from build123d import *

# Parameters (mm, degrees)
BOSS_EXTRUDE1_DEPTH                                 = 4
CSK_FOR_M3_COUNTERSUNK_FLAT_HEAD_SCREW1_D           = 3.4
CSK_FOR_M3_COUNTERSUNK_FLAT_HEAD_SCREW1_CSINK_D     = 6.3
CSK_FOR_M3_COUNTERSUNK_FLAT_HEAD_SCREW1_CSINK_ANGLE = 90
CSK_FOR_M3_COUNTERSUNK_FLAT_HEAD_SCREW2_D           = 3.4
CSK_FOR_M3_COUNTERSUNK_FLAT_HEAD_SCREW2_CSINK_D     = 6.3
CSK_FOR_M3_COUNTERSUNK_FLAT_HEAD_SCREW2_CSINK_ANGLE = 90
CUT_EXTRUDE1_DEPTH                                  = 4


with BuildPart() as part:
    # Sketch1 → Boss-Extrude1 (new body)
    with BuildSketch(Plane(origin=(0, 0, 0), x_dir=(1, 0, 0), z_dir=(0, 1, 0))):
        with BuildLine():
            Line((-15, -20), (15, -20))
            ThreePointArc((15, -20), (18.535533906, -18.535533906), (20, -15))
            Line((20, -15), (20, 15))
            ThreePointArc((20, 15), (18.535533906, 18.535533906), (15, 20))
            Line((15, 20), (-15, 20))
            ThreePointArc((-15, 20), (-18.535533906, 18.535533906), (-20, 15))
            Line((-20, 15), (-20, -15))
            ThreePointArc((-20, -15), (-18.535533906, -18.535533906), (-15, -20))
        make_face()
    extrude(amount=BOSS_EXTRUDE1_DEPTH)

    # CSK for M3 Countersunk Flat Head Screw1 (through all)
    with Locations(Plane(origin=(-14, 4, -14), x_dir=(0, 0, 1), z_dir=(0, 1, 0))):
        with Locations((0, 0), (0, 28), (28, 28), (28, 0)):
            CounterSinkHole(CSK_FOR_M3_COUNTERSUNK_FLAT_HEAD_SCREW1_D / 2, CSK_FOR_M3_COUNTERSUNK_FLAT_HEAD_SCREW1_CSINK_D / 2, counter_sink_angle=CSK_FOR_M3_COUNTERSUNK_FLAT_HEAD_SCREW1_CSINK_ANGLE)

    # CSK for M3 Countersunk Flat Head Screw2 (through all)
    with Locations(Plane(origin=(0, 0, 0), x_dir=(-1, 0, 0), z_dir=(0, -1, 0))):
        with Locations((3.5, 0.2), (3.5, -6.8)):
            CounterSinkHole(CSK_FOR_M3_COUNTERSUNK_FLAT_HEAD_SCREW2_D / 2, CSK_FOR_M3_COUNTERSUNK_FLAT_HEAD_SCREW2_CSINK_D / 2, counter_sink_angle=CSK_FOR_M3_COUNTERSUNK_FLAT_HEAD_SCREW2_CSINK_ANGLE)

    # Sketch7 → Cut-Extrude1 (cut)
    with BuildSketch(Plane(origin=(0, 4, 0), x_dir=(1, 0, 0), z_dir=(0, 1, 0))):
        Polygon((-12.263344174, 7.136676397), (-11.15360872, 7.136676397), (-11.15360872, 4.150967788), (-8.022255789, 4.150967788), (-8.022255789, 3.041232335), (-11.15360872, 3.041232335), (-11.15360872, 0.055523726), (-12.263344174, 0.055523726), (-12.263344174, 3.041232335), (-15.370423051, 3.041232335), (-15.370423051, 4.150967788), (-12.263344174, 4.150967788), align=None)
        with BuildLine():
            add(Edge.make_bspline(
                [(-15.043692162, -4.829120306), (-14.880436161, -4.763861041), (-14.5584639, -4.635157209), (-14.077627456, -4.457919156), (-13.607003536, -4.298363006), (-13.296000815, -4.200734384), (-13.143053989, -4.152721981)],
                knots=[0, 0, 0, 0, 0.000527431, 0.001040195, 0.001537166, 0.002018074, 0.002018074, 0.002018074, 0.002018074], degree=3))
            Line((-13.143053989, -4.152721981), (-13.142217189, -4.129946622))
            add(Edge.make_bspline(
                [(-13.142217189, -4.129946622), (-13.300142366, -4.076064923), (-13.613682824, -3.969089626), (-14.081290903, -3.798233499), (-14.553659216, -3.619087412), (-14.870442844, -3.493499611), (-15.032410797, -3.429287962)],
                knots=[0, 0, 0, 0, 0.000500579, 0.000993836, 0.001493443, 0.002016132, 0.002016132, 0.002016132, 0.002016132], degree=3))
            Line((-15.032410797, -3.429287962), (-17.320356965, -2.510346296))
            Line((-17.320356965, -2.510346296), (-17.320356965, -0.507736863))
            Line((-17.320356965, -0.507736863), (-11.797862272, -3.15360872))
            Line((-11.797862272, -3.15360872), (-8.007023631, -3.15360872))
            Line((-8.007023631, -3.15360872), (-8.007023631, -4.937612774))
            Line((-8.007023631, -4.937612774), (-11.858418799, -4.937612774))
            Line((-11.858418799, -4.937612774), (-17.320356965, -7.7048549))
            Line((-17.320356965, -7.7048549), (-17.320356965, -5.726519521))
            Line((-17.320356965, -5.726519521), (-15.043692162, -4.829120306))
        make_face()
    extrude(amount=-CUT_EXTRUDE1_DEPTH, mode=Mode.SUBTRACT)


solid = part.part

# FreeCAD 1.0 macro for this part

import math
import FreeCAD as App
import Part
import Sketcher

V = App.Vector
Q = App.Units.Quantity

doc = App.newDocument("Part")
params = doc.addObject("Spreadsheet::Sheet", "Params")
for row, (alias, value) in enumerate([
    ("sketch1_radius", "5 mm"),
    ("sketch1_width", "30 mm"),
    ("pad1_length", "4 mm"),
    ("sketch2_diameter", "3.4 mm"),
    ("hole_diameter", "3.4 mm"),
    ("hole_csink_diameter", "6.3 mm"),
    ("sketch3_diameter", "3.4 mm"),
    ("hole2_diameter", "3.4 mm"),
    ("hole2_csink_diameter", "6.3 mm"),
    ("pocket1_length", "4 mm"),
], start=1):
    params.set(f"A{row}", alias)
    params.set(f"B{row}", "=" + value)
    params.setAlias(f"B{row}", alias)

body = doc.addObject("PartDesign::Body", "Body")

# Sketch on XZ plane
sketch1 = body.newObject("Sketcher::SketchObject", "Sketch")
sketch1.AttachmentSupport = (doc.getObject("XZ_Plane"), [""])
sketch1.MapMode = "FlatFace"
sketch1.addGeometry(Part.LineSegment(V(-15, 20, 0), V(15, 20, 0)), False)
sketch1.addGeometry(Part.ArcOfCircle(Part.Circle(V(15, 15, 0), V(0, 0, 1), 5), math.radians(0), math.radians(90)), False)
sketch1.addGeometry(Part.LineSegment(V(20, 15, 0), V(20, -15, 0)), False)
sketch1.addGeometry(Part.ArcOfCircle(Part.Circle(V(15, -15, 0), V(0, 0, 1), 5), math.radians(-90), math.radians(0)), False)
sketch1.addGeometry(Part.LineSegment(V(15, -20, 0), V(-15, -20, 0)), False)
sketch1.addGeometry(Part.ArcOfCircle(Part.Circle(V(-15, -15, 0), V(0, 0, 1), 5), math.radians(180), math.radians(270)), False)
sketch1.addGeometry(Part.LineSegment(V(-20, -15, 0), V(-20, 15, 0)), False)
sketch1.addGeometry(Part.ArcOfCircle(Part.Circle(V(-15, 15, 0), V(0, 0, 1), 5), math.radians(90), math.radians(180)), False)
sketch1.addConstraint(Sketcher.Constraint("Tangent", 0, 2, 1, 2))
sketch1.addConstraint(Sketcher.Constraint("Tangent", 1, 1, 2, 1))
sketch1.addConstraint(Sketcher.Constraint("Tangent", 2, 2, 3, 2))
sketch1.addConstraint(Sketcher.Constraint("Tangent", 3, 1, 4, 1))
sketch1.addConstraint(Sketcher.Constraint("Tangent", 4, 2, 5, 2))
sketch1.addConstraint(Sketcher.Constraint("Tangent", 5, 1, 6, 1))
sketch1.addConstraint(Sketcher.Constraint("Tangent", 6, 2, 7, 2))
sketch1.addConstraint(Sketcher.Constraint("Tangent", 7, 1, 0, 1))
sketch1.addConstraint(Sketcher.Constraint("Horizontal", 0))
sketch1.addConstraint(Sketcher.Constraint("Vertical", 2))
sketch1.addConstraint(Sketcher.Constraint("Horizontal", 4))
sketch1.addConstraint(Sketcher.Constraint("Vertical", 6))
sketch1.addConstraint(Sketcher.Constraint("Equal", 1, 3))
sketch1.addConstraint(Sketcher.Constraint("Equal", 3, 5))
sketch1.addConstraint(Sketcher.Constraint("Equal", 5, 7))
sketch1.addConstraint(Sketcher.Constraint("Symmetric", 1, 3, 5, 3, -1, 1))
sketch1.addConstraint(Sketcher.Constraint("Equal", 4, 2))
sketch1.addConstraint(Sketcher.Constraint("Radius", 1, Q("5 mm")))
sketch1.addConstraint(Sketcher.Constraint("DistanceX", 0, 1, 0, 2, Q("30 mm")))
sketch1.setExpression("Constraints[17]", "Params.sketch1_radius")
sketch1.setExpression("Constraints[18]", "Params.sketch1_width")
pad1 = body.newObject("PartDesign::Pad", "Pad")
pad1.Profile = sketch1
pad1.setExpression("Length", "Params.pad1_length")
pad1.Reversed = True

# Sketch on XZ plane
sketch2 = body.newObject("Sketcher::SketchObject", "Sketch001")
sketch2.AttachmentSupport = (doc.getObject("XZ_Plane"), [""])
sketch2.MapMode = "FlatFace"
sketch2.AttachmentOffset = App.Placement(V(0, 0, -4), App.Rotation())
sketch2.addGeometry(Part.Circle(V(-14, -14, 0), V(0, 0, 1), 1.7), False)
sketch2.addGeometry(Part.Circle(V(14, -14, 0), V(0, 0, 1), 1.7), False)
sketch2.addGeometry(Part.Circle(V(14, 14, 0), V(0, 0, 1), 1.7), False)
sketch2.addGeometry(Part.Circle(V(-14, 14, 0), V(0, 0, 1), 1.7), False)
sketch2.addConstraint(Sketcher.Constraint("Equal", 0, 1))
sketch2.addConstraint(Sketcher.Constraint("Equal", 1, 2))
sketch2.addConstraint(Sketcher.Constraint("Equal", 2, 3))
sketch2.addConstraint(Sketcher.Constraint("Symmetric", 0, 3, 2, 3, -1, 1))
sketch2.addConstraint(Sketcher.Constraint("Symmetric", 1, 3, 3, 3, -1, 1))
sketch2.addConstraint(Sketcher.Constraint("Symmetric", 0, 3, 1, 3, -2))
sketch2.addConstraint(Sketcher.Constraint("Diameter", 0, Q("3.4 mm")))
sketch2.addConstraint(Sketcher.Constraint("DistanceX", 0, 3, -1, 1, Q("14 mm")))
sketch2.addConstraint(Sketcher.Constraint("DistanceY", 0, 3, -1, 1, Q("14 mm")))
sketch2.setExpression("Constraints[6]", "Params.sketch2_diameter")
doc.recompute()
hole = body.newObject("PartDesign::Hole", "Hole")
hole.Profile = sketch2
hole.ThreadType = "None"
hole.setExpression("Diameter", "Params.hole_diameter")
hole.DepthType = "ThroughAll"
hole.HoleCutType = "Countersink"
hole.setExpression("HoleCutDiameter", "Params.hole_csink_diameter")
hole.HoleCutCountersinkAngle = 90
hole.Reversed = True

# Sketch on XZ plane
sketch3 = body.newObject("Sketcher::SketchObject", "Sketch002")
sketch3.AttachmentSupport = (doc.getObject("XZ_Plane"), [""])
sketch3.MapMode = "FlatFace"
sketch3.addGeometry(Part.Circle(V(-3.5, -0.2, 0), V(0, 0, 1), 1.7), False)
sketch3.addGeometry(Part.Circle(V(-3.5, 6.8, 0), V(0, 0, 1), 1.7), False)
sketch3.addConstraint(Sketcher.Constraint("Equal", 0, 1))
sketch3.addConstraint(Sketcher.Constraint("Vertical", 0, 3, 1, 3))
sketch3.addConstraint(Sketcher.Constraint("Diameter", 0, Q("3.4 mm")))
sketch3.addConstraint(Sketcher.Constraint("DistanceY", 0, 3, 1, 3, Q("7 mm")))
sketch3.addConstraint(Sketcher.Constraint("DistanceX", 0, 3, -1, 1, Q("3.5 mm")))
sketch3.addConstraint(Sketcher.Constraint("DistanceY", 0, 3, -1, 1, Q("0.2 mm")))
sketch3.setExpression("Constraints[2]", "Params.sketch3_diameter")
doc.recompute()
hole2 = body.newObject("PartDesign::Hole", "Hole001")
hole2.Profile = sketch3
hole2.ThreadType = "None"
hole2.setExpression("Diameter", "Params.hole2_diameter")
hole2.DepthType = "ThroughAll"
hole2.HoleCutType = "Countersink"
hole2.setExpression("HoleCutDiameter", "Params.hole2_csink_diameter")
hole2.HoleCutCountersinkAngle = 90

# Sketch on XZ plane
sketch4 = body.newObject("Sketcher::SketchObject", "Sketch003")
sketch4.AttachmentSupport = (doc.getObject("XZ_Plane"), [""])
sketch4.MapMode = "FlatFace"
sketch4.AttachmentOffset = App.Placement(V(0, 0, -4), App.Rotation())
sketch4.addGeometry(Part.LineSegment(V(-11.153609, -7.136676, 0), V(-12.263344, -7.136676, 0)), False)
sketch4.addGeometry(Part.LineSegment(V(-12.263344, -7.136676, 0), V(-12.263344, -4.150968, 0)), False)
sketch4.addGeometry(Part.LineSegment(V(-12.263344, -4.150968, 0), V(-15.370423, -4.150968, 0)), False)
sketch4.addGeometry(Part.LineSegment(V(-15.370423, -4.150968, 0), V(-15.370423, -3.041232, 0)), False)
sketch4.addGeometry(Part.LineSegment(V(-15.370423, -3.041232, 0), V(-12.263344, -3.041232, 0)), False)
sketch4.addGeometry(Part.LineSegment(V(-12.263344, -3.041232, 0), V(-12.263344, -0.055524, 0)), False)
sketch4.addGeometry(Part.LineSegment(V(-12.263344, -0.055524, 0), V(-11.153609, -0.055524, 0)), False)
sketch4.addGeometry(Part.LineSegment(V(-11.153609, -0.055524, 0), V(-11.153609, -3.041232, 0)), False)
sketch4.addGeometry(Part.LineSegment(V(-11.153609, -3.041232, 0), V(-8.022256, -3.041232, 0)), False)
sketch4.addGeometry(Part.LineSegment(V(-8.022256, -3.041232, 0), V(-8.022256, -4.150968, 0)), False)
sketch4.addGeometry(Part.LineSegment(V(-8.022256, -4.150968, 0), V(-11.153609, -4.150968, 0)), False)
sketch4.addGeometry(Part.LineSegment(V(-11.153609, -4.150968, 0), V(-11.153609, -7.136676, 0)), False)
sketch4.addGeometry(Part.BSplineCurve([V(-15.043692, 4.82912, 0), V(-14.880436, 4.763861, 0), V(-14.558464, 4.635157, 0), V(-14.077627, 4.457919, 0), V(-13.607004, 4.298363, 0), V(-13.296001, 4.200734, 0), V(-13.143054, 4.152722, 0)], [4, 1, 1, 1, 4], [0, 0.000527431, 0.001040195, 0.001537166, 0.002018074], False, 3, [1, 1, 1, 1, 1, 1, 1], False), False)
sketch4.addGeometry(Part.LineSegment(V(-15.043692, 4.82912, 0), V(-17.320357, 5.72652, 0)), False)
sketch4.addGeometry(Part.LineSegment(V(-17.320357, 5.72652, 0), V(-17.320357, 7.704855, 0)), False)
sketch4.addGeometry(Part.LineSegment(V(-17.320357, 7.704855, 0), V(-11.858419, 4.937613, 0)), False)
sketch4.addGeometry(Part.LineSegment(V(-11.858419, 4.937613, 0), V(-8.007024, 4.937613, 0)), False)
sketch4.addGeometry(Part.LineSegment(V(-8.007024, 4.937613, 0), V(-8.007024, 3.153609, 0)), False)
sketch4.addGeometry(Part.LineSegment(V(-8.007024, 3.153609, 0), V(-11.797862, 3.153609, 0)), False)
sketch4.addGeometry(Part.LineSegment(V(-11.797862, 3.153609, 0), V(-17.320357, 0.507737, 0)), False)
sketch4.addGeometry(Part.LineSegment(V(-17.320357, 0.507737, 0), V(-17.320357, 2.510346, 0)), False)
sketch4.addGeometry(Part.LineSegment(V(-17.320357, 2.510346, 0), V(-15.032411, 3.429288, 0)), False)
sketch4.addGeometry(Part.BSplineCurve([V(-13.142217, 4.129947, 0), V(-13.300142, 4.076065, 0), V(-13.613683, 3.96909, 0), V(-14.081291, 3.798233, 0), V(-14.553659, 3.619087, 0), V(-14.870443, 3.4935, 0), V(-15.032411, 3.429288, 0)], [4, 1, 1, 1, 4], [0, 0.000500579, 0.000993836, 0.001493443, 0.002016132], False, 3, [1, 1, 1, 1, 1, 1, 1], False), False)
sketch4.addGeometry(Part.LineSegment(V(-13.142217, 4.129947, 0), V(-13.143054, 4.152722, 0)), False)
sketch4.addConstraint(Sketcher.Constraint("Block", 12))
sketch4.addConstraint(Sketcher.Constraint("Block", 22))
sketch4.addConstraint(Sketcher.Constraint("Coincident", 0, 2, 1, 1))
sketch4.addConstraint(Sketcher.Constraint("Coincident", 1, 2, 2, 1))
sketch4.addConstraint(Sketcher.Constraint("Coincident", 2, 2, 3, 1))
sketch4.addConstraint(Sketcher.Constraint("Coincident", 3, 2, 4, 1))
sketch4.addConstraint(Sketcher.Constraint("Coincident", 4, 2, 5, 1))
sketch4.addConstraint(Sketcher.Constraint("Coincident", 5, 2, 6, 1))
sketch4.addConstraint(Sketcher.Constraint("Coincident", 6, 2, 7, 1))
sketch4.addConstraint(Sketcher.Constraint("Coincident", 7, 2, 8, 1))
sketch4.addConstraint(Sketcher.Constraint("Coincident", 8, 2, 9, 1))
sketch4.addConstraint(Sketcher.Constraint("Coincident", 9, 2, 10, 1))
sketch4.addConstraint(Sketcher.Constraint("Coincident", 10, 2, 11, 1))
sketch4.addConstraint(Sketcher.Constraint("Coincident", 11, 2, 0, 1))
sketch4.addConstraint(Sketcher.Constraint("Coincident", 12, 1, 13, 1))
sketch4.addConstraint(Sketcher.Constraint("Coincident", 13, 2, 14, 1))
sketch4.addConstraint(Sketcher.Constraint("Coincident", 14, 2, 15, 1))
sketch4.addConstraint(Sketcher.Constraint("Coincident", 15, 2, 16, 1))
sketch4.addConstraint(Sketcher.Constraint("Coincident", 16, 2, 17, 1))
sketch4.addConstraint(Sketcher.Constraint("Coincident", 17, 2, 18, 1))
sketch4.addConstraint(Sketcher.Constraint("Coincident", 18, 2, 19, 1))
sketch4.addConstraint(Sketcher.Constraint("Coincident", 19, 2, 20, 1))
sketch4.addConstraint(Sketcher.Constraint("Coincident", 20, 2, 21, 1))
sketch4.addConstraint(Sketcher.Constraint("Coincident", 21, 2, 22, 2))
sketch4.addConstraint(Sketcher.Constraint("Coincident", 22, 1, 23, 1))
sketch4.addConstraint(Sketcher.Constraint("Coincident", 23, 2, 12, 2))
sketch4.addConstraint(Sketcher.Constraint("Horizontal", 0))
sketch4.addConstraint(Sketcher.Constraint("Vertical", 1))
sketch4.addConstraint(Sketcher.Constraint("Horizontal", 2))
sketch4.addConstraint(Sketcher.Constraint("Vertical", 3))
sketch4.addConstraint(Sketcher.Constraint("Horizontal", 4))
sketch4.addConstraint(Sketcher.Constraint("Vertical", 5))
sketch4.addConstraint(Sketcher.Constraint("Horizontal", 6))
sketch4.addConstraint(Sketcher.Constraint("Vertical", 7))
sketch4.addConstraint(Sketcher.Constraint("Horizontal", 8))
sketch4.addConstraint(Sketcher.Constraint("Vertical", 9))
sketch4.addConstraint(Sketcher.Constraint("Horizontal", 10))
sketch4.addConstraint(Sketcher.Constraint("Vertical", 11))
sketch4.addConstraint(Sketcher.Constraint("Vertical", 14))
sketch4.addConstraint(Sketcher.Constraint("Horizontal", 16))
sketch4.addConstraint(Sketcher.Constraint("Vertical", 17))
sketch4.addConstraint(Sketcher.Constraint("Horizontal", 18))
sketch4.addConstraint(Sketcher.Constraint("Vertical", 20))
sketch4.addConstraint(Sketcher.Constraint("Horizontal", 4, 2, 7, 2))
sketch4.addConstraint(Sketcher.Constraint("Horizontal", 2, 2, 9, 2))
sketch4.addConstraint(Sketcher.Constraint("Vertical", 1, 2, 4, 2))
sketch4.addConstraint(Sketcher.Constraint("Vertical", 7, 2, 10, 2))
sketch4.addConstraint(Sketcher.Constraint("Vertical", 14, 2, 19, 2))
sketch4.addConstraint(Sketcher.Constraint("Equal", 6, 3))
sketch4.addConstraint(Sketcher.Constraint("Equal", 1, 5))
sketch4.addConstraint(Sketcher.Constraint("DistanceX", 2, 2, 2, 1, Q("3.107079 mm")))
sketch4.addConstraint(Sketcher.Constraint("DistanceX", 18, 2, 18, 1, Q("3.790839 mm")))
sketch4.addConstraint(Sketcher.Constraint("DistanceY", 1, 1, 1, 2, Q("2.985709 mm")))
sketch4.addConstraint(Sketcher.Constraint("DistanceY", 20, 1, 20, 2, Q("2.002609 mm")))
sketch4.addConstraint(Sketcher.Constraint("Distance", 15, Q("6.12294 mm")))
sketch4.addConstraint(Sketcher.Constraint("Distance", 19, Q("6.123609 mm")))
sketch4.addConstraint(Sketcher.Constraint("DistanceX", 0, 2, 0, 1, Q("1.109735 mm")))
sketch4.addConstraint(Sketcher.Constraint("DistanceX", 8, 1, 8, 2, Q("3.131353 mm")))
sketch4.addConstraint(Sketcher.Constraint("DistanceX", 16, 1, 16, 2, Q("3.851395 mm")))
sketch4.addConstraint(Sketcher.Constraint("DistanceY", 14, 1, 14, 2, Q("1.978335 mm")))
sketch4.addConstraint(Sketcher.Constraint("DistanceY", 17, 2, 17, 1, Q("1.784004 mm")))
sketch4.addConstraint(Sketcher.Constraint("DistanceX", 6, 2, -1, 1, Q("11.153609 mm")))
sketch4.addConstraint(Sketcher.Constraint("DistanceY", -1, 1, 13, 2, Q("5.72652 mm")))
sketch4.addConstraint(Sketcher.Constraint("DistanceX", 15, 2, -1, 1, Q("11.858419 mm")))
sketch4.addConstraint(Sketcher.Constraint("DistanceY", -1, 1, 17, 2, Q("3.153609 mm")))
sketch4.addConstraint(Sketcher.Constraint("DistanceY", 3, 2, 13, 2, Q("8.767752 mm")))
pocket1 = body.newObject("PartDesign::Pocket", "Pocket")
pocket1.Profile = sketch4
pocket1.setExpression("Length", "Params.pocket1_length")
pocket1.Reversed = True

doc.recompute()
